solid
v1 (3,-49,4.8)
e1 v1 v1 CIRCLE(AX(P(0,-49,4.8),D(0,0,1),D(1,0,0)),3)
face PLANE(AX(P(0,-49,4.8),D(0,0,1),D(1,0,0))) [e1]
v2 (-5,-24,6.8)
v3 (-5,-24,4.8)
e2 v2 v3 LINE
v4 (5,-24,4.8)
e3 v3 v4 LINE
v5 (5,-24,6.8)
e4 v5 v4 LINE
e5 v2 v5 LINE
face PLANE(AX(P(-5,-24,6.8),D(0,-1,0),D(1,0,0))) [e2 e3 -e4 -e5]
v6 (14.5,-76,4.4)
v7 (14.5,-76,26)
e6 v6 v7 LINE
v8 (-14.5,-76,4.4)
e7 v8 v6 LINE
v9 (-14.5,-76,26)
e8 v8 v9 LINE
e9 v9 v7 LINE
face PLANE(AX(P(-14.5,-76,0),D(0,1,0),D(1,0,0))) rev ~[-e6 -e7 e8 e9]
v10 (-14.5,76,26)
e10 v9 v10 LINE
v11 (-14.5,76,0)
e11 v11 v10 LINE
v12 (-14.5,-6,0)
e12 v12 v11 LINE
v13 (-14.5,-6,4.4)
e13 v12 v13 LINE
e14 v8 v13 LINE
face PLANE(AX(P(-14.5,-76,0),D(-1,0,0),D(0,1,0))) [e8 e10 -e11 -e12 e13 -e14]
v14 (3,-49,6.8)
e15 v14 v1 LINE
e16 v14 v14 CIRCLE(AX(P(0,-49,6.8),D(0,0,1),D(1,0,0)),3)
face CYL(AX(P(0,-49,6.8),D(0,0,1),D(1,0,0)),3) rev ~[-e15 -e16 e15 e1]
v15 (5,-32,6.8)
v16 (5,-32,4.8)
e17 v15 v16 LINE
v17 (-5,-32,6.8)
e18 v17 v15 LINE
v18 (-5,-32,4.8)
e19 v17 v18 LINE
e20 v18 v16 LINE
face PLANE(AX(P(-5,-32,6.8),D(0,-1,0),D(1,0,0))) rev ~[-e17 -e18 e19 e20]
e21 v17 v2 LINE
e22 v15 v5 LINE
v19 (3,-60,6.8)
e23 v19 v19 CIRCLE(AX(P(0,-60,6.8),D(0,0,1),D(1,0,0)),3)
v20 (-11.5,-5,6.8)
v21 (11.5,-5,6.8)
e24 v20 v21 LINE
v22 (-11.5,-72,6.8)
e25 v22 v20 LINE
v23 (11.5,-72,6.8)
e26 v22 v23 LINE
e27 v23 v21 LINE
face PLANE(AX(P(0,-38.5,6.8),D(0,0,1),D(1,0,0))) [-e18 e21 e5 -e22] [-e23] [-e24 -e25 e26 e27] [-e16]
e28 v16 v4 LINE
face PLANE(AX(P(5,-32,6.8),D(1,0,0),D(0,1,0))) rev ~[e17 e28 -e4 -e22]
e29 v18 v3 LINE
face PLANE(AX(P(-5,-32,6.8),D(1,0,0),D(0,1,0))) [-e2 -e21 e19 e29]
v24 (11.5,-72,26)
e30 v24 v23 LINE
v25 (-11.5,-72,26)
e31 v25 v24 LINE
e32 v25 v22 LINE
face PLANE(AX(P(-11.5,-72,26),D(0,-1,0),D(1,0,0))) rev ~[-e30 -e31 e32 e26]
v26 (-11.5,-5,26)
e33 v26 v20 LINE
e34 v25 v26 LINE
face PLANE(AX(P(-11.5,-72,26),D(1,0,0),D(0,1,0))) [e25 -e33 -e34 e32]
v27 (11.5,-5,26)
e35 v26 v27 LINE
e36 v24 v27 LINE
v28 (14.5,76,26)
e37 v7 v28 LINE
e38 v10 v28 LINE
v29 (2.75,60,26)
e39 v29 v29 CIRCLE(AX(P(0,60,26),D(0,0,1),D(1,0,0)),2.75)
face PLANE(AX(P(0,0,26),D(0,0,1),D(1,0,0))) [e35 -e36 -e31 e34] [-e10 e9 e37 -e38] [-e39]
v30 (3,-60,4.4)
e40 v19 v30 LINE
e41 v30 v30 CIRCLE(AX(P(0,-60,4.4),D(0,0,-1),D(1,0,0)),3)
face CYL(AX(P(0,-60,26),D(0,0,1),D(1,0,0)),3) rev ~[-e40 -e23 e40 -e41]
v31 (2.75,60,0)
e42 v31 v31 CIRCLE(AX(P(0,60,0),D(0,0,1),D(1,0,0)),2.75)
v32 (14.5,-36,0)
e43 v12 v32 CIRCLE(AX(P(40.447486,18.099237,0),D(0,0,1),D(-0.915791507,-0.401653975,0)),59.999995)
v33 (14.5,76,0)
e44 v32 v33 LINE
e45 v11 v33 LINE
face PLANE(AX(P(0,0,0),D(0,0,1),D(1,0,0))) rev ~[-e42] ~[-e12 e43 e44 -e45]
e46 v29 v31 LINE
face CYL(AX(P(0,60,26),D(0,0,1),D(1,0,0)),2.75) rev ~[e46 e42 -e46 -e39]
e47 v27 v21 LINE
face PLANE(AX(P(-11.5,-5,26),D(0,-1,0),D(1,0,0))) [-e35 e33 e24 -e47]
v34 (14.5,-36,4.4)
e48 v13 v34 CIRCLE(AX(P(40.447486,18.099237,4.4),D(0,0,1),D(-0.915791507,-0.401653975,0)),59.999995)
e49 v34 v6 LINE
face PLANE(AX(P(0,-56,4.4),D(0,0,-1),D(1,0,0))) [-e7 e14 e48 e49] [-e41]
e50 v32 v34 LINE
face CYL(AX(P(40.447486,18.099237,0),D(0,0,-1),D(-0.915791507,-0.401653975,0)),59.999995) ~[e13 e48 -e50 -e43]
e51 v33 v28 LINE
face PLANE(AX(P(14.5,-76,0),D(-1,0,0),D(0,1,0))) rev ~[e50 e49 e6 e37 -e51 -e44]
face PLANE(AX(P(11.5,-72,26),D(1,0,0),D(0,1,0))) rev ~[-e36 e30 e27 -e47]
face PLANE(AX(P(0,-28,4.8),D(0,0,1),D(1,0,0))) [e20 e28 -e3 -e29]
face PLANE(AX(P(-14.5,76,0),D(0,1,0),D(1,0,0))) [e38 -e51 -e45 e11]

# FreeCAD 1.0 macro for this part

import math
import FreeCAD as App
import Part
import Sketcher
Q = App.Units.Quantity


def add_polygon(sketch, points):
    """Adds a closed chain of lines whose ends are joined by coincident constraints."""
    first, n = sketch.GeometryCount, len(points)
    for a, b in zip(points, points[1:] + points[:1]):
        sketch.addGeometry(Part.LineSegment(App.Vector(*a, 0), App.Vector(*b, 0)), False)
    for i in range(n):
        sketch.addConstraint(Sketcher.Constraint("Coincident", first + i, 2, first + (i + 1) % n, 1))

doc = App.newDocument("Part")
body = doc.addObject("PartDesign::Body", "Body")

# Sketch on XY plane
sketch1 = body.newObject("Sketcher::SketchObject", "Sketch")
sketch1.AttachmentSupport = (doc.getObject("XY_Plane"), [""])
sketch1.MapMode = "FlatFace"
add_polygon(sketch1, [(-14.5, 76), (-14.5, -76), (14.5, -76), (14.5, 76)])  # lines 0-3
sketch1.addConstraint([
    Sketcher.Constraint("Vertical", 0),
    Sketcher.Constraint("Horizontal", 1),
    Sketcher.Constraint("Vertical", 2),
    Sketcher.Constraint("Horizontal", 3),
    Sketcher.Constraint("Symmetric", 0, 2, 2, 2, -1, 1),
    Sketcher.Constraint("DistanceX", 1, 1, 1, 2, Q("29 mm")),
    Sketcher.Constraint("DistanceY", 0, 2, 0, 1, Q("152 mm")),
])
pad1 = body.newObject("PartDesign::Pad", "Pad")
pad1.Profile = sketch1
pad1.Length = 26

# Sketch on XY plane
sketch2 = body.newObject("Sketcher::SketchObject", "Sketch001")
sketch2.AttachmentSupport = (doc.getObject("XY_Plane"), [""])
sketch2.MapMode = "FlatFace"
sketch2.AttachmentOffset = App.Placement(App.Vector(0, 0, 26), App.Rotation())
sketch2.addGeometry([
    Part.Circle(App.Vector(0, -60, 0), App.Vector(0, 0, 1), 3),
    Part.Circle(App.Vector(0, 60, 0), App.Vector(0, 0, 1), 2.75),
], False)
sketch2.addConstraint([
    Sketcher.Constraint("Symmetric", 0, 3, 1, 3, -1, 1),
    Sketcher.Constraint("PointOnObject", 0, 3, -2),
    Sketcher.Constraint("Diameter", 0, Q("6 mm")),
    Sketcher.Constraint("Diameter", 1, Q("5.5 mm")),
    Sketcher.Constraint("DistanceY", 0, 3, -1, 1, Q("60 mm")),
])
pocket1 = body.newObject("PartDesign::Pocket", "Pocket")
pocket1.Profile = sketch2
pocket1.Type = "ThroughAll"

# Sketch on XY plane
sketch3 = body.newObject("Sketcher::SketchObject", "Sketch002")
sketch3.AttachmentSupport = (doc.getObject("XY_Plane"), [""])
sketch3.MapMode = "FlatFace"
sketch3.AttachmentOffset = App.Placement(App.Vector(0, 0, 26), App.Rotation())
add_polygon(sketch3, [(-11.5, -5), (-11.5, -72), (11.5, -72), (11.5, -5)])  # lines 0-3
sketch3.addGeometry(Part.Circle(App.Vector(0, -60, 0), App.Vector(0, 0, 1), 3), False)  # 4
sketch3.addConstraint([
    Sketcher.Constraint("Vertical", 0),
    Sketcher.Constraint("Horizontal", 1),
    Sketcher.Constraint("Vertical", 2),
    Sketcher.Constraint("Horizontal", 3),
    Sketcher.Constraint("PointOnObject", 4, 3, -2),
    Sketcher.Constraint("Diameter", 4, Q("6 mm")),
    Sketcher.Constraint("DistanceX", 1, 1, 1, 2, Q("23 mm")),
    Sketcher.Constraint("DistanceY", 0, 2, 0, 1, Q("67 mm")),
    Sketcher.Constraint("DistanceY", 4, 3, -1, 1, Q("60 mm")),
    Sketcher.Constraint("DistanceY", 0, 2, -1, 1, Q("72 mm")),
    Sketcher.Constraint("DistanceX", 0, 2, -1, 1, Q("11.5 mm")),
])
pocket2 = body.newObject("PartDesign::Pocket", "Pocket001")
pocket2.Profile = sketch3
pocket2.Length = 19.2

# Sketch on XY plane
sketch4 = body.newObject("Sketcher::SketchObject", "Sketch003")
sketch4.AttachmentSupport = (doc.getObject("XY_Plane"), [""])
sketch4.MapMode = "FlatFace"
sketch4.AttachmentOffset = App.Placement(App.Vector(0, 0, 6.8), App.Rotation())
add_polygon(sketch4, [(-5, -24), (-5, -32), (5, -32), (5, -24)])  # lines 0-3
sketch4.addGeometry(Part.Circle(App.Vector(0, -49, 0), App.Vector(0, 0, 1), 3), False)  # 4
sketch4.addConstraint([
    Sketcher.Constraint("Vertical", 0),
    Sketcher.Constraint("Horizontal", 1),
    Sketcher.Constraint("Vertical", 2),
    Sketcher.Constraint("Horizontal", 3),
    Sketcher.Constraint("PointOnObject", 4, 3, -2),
    Sketcher.Constraint("Diameter", 4, Q("6 mm")),
    Sketcher.Constraint("DistanceX", 1, 1, 1, 2, Q("10 mm")),
    Sketcher.Constraint("DistanceY", 0, 2, 0, 1, Q("8 mm")),
    Sketcher.Constraint("DistanceY", 4, 3, -1, 1, Q("49 mm")),
    Sketcher.Constraint("DistanceX", 0, 2, -1, 1, Q("5 mm")),
    Sketcher.Constraint("DistanceY", 0, 2, -1, 1, Q("32 mm")),
])
pocket3 = body.newObject("PartDesign::Pocket", "Pocket002")
pocket3.Profile = sketch4
pocket3.Length = 2

# Sketch on XY plane
sketch5 = body.newObject("Sketcher::SketchObject", "Sketch004")
sketch5.AttachmentSupport = (doc.getObject("XY_Plane"), [""])
sketch5.MapMode = "FlatFace"
sketch5.addGeometry([
    Part.LineSegment(App.Vector(-14.5, -76, 0), App.Vector(-14.5, -6, 0)),  # 0
    Part.ArcOfCircle(Part.Circle(App.Vector(40.447486, 18.099237, 0), App.Vector(0, 0, 1), 59.999995), math.radians(-156.318383), math.radians(-115.623661)),  # 1
    Part.LineSegment(App.Vector(14.5, -36, 0), App.Vector(14.5, -76, 0)),  # 2
    Part.LineSegment(App.Vector(14.5, -76, 0), App.Vector(-14.5, -76, 0)),  # 3
    Part.Circle(App.Vector(0, -60, 0), App.Vector(0, 0, 1), 3),  # 4
], False)
sketch5.addConstraint([
    Sketcher.Constraint("Coincident", 0, 2, 1, 1),
    Sketcher.Constraint("Coincident", 1, 2, 2, 1),
    Sketcher.Constraint("Coincident", 2, 2, 3, 1),
    Sketcher.Constraint("Coincident", 3, 2, 0, 1),
    Sketcher.Constraint("Vertical", 0),
    Sketcher.Constraint("Vertical", 2),
    Sketcher.Constraint("Horizontal", 3),
    Sketcher.Constraint("PointOnObject", 4, 3, -2),
    Sketcher.Constraint("Diameter", 4, Q("6 mm")),
    Sketcher.Constraint("DistanceX", 3, 2, 3, 1, Q("29 mm")),
    Sketcher.Constraint("DistanceY", 0, 1, 0, 2, Q("70 mm")),
    Sketcher.Constraint("DistanceY", 2, 2, 2, 1, Q("40 mm")),
    Sketcher.Constraint("DistanceY", 4, 3, -1, 1, Q("60 mm")),
    Sketcher.Constraint("DistanceY", 0, 2, -1, 1, Q("6 mm")),
    Sketcher.Constraint("DistanceX", 0, 2, -1, 1, Q("14.5 mm")),
    Sketcher.Constraint("Radius", 1, Q("59.999995 mm")),
])
pocket4 = body.newObject("PartDesign::Pocket", "Pocket003")
pocket4.Profile = sketch5
pocket4.Length = 4.4
pocket4.Reversed = True

doc.recompute()
